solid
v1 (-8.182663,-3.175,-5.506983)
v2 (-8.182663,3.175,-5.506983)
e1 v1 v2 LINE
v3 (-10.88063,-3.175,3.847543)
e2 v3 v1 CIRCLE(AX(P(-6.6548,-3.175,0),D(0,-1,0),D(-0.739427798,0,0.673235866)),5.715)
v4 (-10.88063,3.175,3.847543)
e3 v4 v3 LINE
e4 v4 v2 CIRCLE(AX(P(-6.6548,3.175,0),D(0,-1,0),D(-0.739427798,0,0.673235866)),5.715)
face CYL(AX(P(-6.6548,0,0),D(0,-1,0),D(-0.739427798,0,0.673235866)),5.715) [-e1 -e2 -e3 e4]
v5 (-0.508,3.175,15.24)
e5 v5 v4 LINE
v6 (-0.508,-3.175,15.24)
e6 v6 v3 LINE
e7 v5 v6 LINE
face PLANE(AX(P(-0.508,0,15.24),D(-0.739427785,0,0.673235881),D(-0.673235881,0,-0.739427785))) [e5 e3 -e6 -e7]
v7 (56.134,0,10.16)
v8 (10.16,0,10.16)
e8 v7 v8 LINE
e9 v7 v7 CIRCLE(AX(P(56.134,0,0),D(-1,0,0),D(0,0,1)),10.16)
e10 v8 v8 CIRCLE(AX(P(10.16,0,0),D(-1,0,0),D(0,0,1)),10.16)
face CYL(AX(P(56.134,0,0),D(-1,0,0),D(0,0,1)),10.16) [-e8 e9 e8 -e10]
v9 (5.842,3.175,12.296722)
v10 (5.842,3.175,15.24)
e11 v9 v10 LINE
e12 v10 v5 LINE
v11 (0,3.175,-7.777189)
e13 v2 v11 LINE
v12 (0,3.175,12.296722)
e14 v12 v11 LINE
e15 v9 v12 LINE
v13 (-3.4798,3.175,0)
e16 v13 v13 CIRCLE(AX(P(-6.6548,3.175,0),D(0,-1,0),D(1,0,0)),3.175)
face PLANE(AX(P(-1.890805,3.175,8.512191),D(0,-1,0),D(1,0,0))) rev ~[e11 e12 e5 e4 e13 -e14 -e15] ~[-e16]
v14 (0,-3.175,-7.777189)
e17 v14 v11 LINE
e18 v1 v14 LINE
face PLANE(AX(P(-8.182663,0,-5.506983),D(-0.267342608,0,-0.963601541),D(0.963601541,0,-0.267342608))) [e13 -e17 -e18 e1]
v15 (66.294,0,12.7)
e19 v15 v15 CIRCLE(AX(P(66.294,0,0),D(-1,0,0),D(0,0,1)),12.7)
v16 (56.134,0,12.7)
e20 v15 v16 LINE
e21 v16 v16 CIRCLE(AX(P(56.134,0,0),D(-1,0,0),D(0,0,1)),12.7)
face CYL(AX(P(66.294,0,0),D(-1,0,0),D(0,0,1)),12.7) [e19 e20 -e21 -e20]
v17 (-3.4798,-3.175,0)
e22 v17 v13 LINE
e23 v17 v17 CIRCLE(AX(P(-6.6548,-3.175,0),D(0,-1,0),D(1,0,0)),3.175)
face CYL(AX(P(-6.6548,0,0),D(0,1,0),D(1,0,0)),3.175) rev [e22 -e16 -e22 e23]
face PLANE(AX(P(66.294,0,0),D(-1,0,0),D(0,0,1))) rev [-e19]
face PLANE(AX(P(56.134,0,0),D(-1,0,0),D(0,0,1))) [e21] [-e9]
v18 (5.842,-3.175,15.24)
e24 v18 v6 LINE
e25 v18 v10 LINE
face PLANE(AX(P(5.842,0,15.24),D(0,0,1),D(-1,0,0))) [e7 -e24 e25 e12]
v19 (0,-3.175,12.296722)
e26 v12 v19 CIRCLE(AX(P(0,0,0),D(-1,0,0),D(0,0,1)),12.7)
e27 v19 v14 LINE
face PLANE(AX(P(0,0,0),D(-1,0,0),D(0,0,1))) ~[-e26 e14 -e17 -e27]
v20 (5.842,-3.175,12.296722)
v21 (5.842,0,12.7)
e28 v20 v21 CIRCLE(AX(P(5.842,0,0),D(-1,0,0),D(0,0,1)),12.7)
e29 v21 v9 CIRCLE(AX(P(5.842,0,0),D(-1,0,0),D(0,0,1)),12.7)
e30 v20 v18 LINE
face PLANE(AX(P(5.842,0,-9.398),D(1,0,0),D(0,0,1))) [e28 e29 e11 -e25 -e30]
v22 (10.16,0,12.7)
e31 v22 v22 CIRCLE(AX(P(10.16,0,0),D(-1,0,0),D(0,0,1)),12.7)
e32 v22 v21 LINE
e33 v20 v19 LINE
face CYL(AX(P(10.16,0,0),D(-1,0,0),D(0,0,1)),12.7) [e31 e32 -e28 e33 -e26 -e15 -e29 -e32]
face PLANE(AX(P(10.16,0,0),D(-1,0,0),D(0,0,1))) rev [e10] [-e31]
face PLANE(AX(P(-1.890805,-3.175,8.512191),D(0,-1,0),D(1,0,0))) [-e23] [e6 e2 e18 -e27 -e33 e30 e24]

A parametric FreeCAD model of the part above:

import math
import FreeCAD as App
import Part
import Sketcher

V = App.Vector
Q = App.Units.Quantity

doc = App.newDocument("Part")
body = doc.addObject("PartDesign::Body", "Body")

sketch1 = body.newObject("Sketcher::SketchObject", "Sketch")
sketch1.AttachmentSupport = (doc.getObject("XZ_Plane"), [""])
sketch1.MapMode = "FlatFace"
sketch1.addGeometry(Part.LineSegment(V(66.3, 0, 0), V(66.3, 12.7, 0)), False)
sketch1.addGeometry(Part.LineSegment(V(66.3, 12.7, 0), V(56.1, 12.7, 0)), False)
sketch1.addGeometry(Part.LineSegment(V(56.1, 12.7, 0), V(56.1, 10.2, 0)), False)
sketch1.addGeometry(Part.LineSegment(V(56.1, 10.2, 0), V(10.2, 10.2, 0)), False)
sketch1.addGeometry(Part.LineSegment(V(10.2, 10.2, 0), V(10.2, 12.7, 0)), False)
sketch1.addGeometry(Part.LineSegment(V(10.2, 12.7, 0), V(0, 12.7, 0)), False)
sketch1.addGeometry(Part.LineSegment(V(0, 12.7, 0), V(0, 0, 0)), False)
sketch1.addGeometry(Part.LineSegment(V(0, 0, 0), V(66.3, 0, 0)), False)
sketch1.addConstraint(Sketcher.Constraint("Coincident", 0, 2, 1, 1))
sketch1.addConstraint(Sketcher.Constraint("Coincident", 1, 2, 2, 1))
sketch1.addConstraint(Sketcher.Constraint("Coincident", 2, 2, 3, 1))
sketch1.addConstraint(Sketcher.Constraint("Coincident", 3, 2, 4, 1))
sketch1.addConstraint(Sketcher.Constraint("Coincident", 4, 2, 5, 1))
sketch1.addConstraint(Sketcher.Constraint("Coincident", 5, 2, 6, 1))
sketch1.addConstraint(Sketcher.Constraint("Coincident", 6, 2, 7, 1))
sketch1.addConstraint(Sketcher.Constraint("Coincident", 7, 2, 0, 1))
sketch1.addConstraint(Sketcher.Constraint("Vertical", 0))
sketch1.addConstraint(Sketcher.Constraint("Horizontal", 1))
sketch1.addConstraint(Sketcher.Constraint("Vertical", 2))
sketch1.addConstraint(Sketcher.Constraint("Horizontal", 3))
sketch1.addConstraint(Sketcher.Constraint("Vertical", 4))
sketch1.addConstraint(Sketcher.Constraint("Horizontal", 5))
sketch1.addConstraint(Sketcher.Constraint("Vertical", 6))
sketch1.addConstraint(Sketcher.Constraint("Horizontal", 7))
sketch1.addConstraint(Sketcher.Constraint("Coincident", 6, 2, -1, 1))
sketch1.addConstraint(Sketcher.Constraint("Horizontal", 1, 2, 4, 2))
sketch1.addConstraint(Sketcher.Constraint("Equal", 1, 5))
sketch1.addConstraint(Sketcher.Constraint("DistanceX", 1, 2, 1, 1, Q("0.4 in")))
sketch1.addConstraint(Sketcher.Constraint("DistanceY", 0, 1, 0, 2, Q("0.5 in")))
sketch1.addConstraint(Sketcher.Constraint("DistanceY", 2, 2, 2, 1, Q("0.1 in")))
sketch1.addConstraint(Sketcher.Constraint("DistanceX", 3, 2, 3, 1, Q("1.81 in")))
revolution = body.newObject("PartDesign::Revolution", "Revolution")
revolution.Profile = sketch1
revolution.ReferenceAxis = (sketch1, ["H_Axis"])
revolution.Angle = 360

sketch2 = body.newObject("Sketcher::SketchObject", "Sketch001")
sketch2.AttachmentSupport = (doc.getObject("XZ_Plane"), [""])
sketch2.MapMode = "FlatFace"
sketch2.addGeometry(Part.LineSegment(V(5.8, 15.2, 0), V(-0.5, 15.2, 0)), False)
sketch2.addGeometry(Part.LineSegment(V(-0.5, 15.2, 0), V(-10.9, 3.8, 0)), False)
sketch2.addGeometry(Part.ArcOfCircle(Part.Circle(V(-6.7, 0, 0), V(0, 0, 1), 5.7), math.radians(138), math.radians(254)), False)
sketch2.addGeometry(Part.LineSegment(V(-8.2, -5.5, 0), V(5.8, -9.4, 0)), False)
sketch2.addGeometry(Part.LineSegment(V(5.8, -9.4, 0), V(5.8, 15.2, 0)), False)
sketch2.addGeometry(Part.Circle(V(-6.7, 0, 0), V(0, 0, 1), 3.2), False)
sketch2.addConstraint(Sketcher.Constraint("Coincident", 0, 2, 1, 1))
sketch2.addConstraint(Sketcher.Constraint("Tangent", 1, 2, 2, 1))
sketch2.addConstraint(Sketcher.Constraint("Tangent", 2, 2, 3, 1))
sketch2.addConstraint(Sketcher.Constraint("Coincident", 3, 2, 4, 1))
sketch2.addConstraint(Sketcher.Constraint("Coincident", 4, 2, 0, 1))
sketch2.addConstraint(Sketcher.Constraint("Horizontal", 0))
sketch2.addConstraint(Sketcher.Constraint("Vertical", 4))
sketch2.addConstraint(Sketcher.Constraint("Coincident", 5, 3, 2, 3))
sketch2.addConstraint(Sketcher.Constraint("PointOnObject", 2, 3, -1))
sketch2.addConstraint(Sketcher.Constraint("Diameter", 5, Q("0.25 in")))
sketch2.addConstraint(Sketcher.Constraint("Radius", 2, Q("0.225 in")))
sketch2.addConstraint(Sketcher.Constraint("DistanceX", 0, 2, 0, 1, Q("0.25 in")))
sketch2.addConstraint(Sketcher.Constraint("DistanceY", 4, 1, 4, 2, Q("0.97 in")))
sketch2.addConstraint(Sketcher.Constraint("DistanceY", -1, 1, 0, 2, Q("0.6 in")))
sketch2.addConstraint(Sketcher.Constraint("DistanceX", 0, 2, -1, 1, Q("0.02 in")))
sketch2.addConstraint(Sketcher.Constraint("DistanceX", 2, 3, -1, 1, Q("0.262 in")))
pad1 = body.newObject("PartDesign::Pad", "Pad")
pad1.Profile = sketch2
pad1.Length = Q("0.25 in")
pad1.Midplane = True

doc.recompute()
